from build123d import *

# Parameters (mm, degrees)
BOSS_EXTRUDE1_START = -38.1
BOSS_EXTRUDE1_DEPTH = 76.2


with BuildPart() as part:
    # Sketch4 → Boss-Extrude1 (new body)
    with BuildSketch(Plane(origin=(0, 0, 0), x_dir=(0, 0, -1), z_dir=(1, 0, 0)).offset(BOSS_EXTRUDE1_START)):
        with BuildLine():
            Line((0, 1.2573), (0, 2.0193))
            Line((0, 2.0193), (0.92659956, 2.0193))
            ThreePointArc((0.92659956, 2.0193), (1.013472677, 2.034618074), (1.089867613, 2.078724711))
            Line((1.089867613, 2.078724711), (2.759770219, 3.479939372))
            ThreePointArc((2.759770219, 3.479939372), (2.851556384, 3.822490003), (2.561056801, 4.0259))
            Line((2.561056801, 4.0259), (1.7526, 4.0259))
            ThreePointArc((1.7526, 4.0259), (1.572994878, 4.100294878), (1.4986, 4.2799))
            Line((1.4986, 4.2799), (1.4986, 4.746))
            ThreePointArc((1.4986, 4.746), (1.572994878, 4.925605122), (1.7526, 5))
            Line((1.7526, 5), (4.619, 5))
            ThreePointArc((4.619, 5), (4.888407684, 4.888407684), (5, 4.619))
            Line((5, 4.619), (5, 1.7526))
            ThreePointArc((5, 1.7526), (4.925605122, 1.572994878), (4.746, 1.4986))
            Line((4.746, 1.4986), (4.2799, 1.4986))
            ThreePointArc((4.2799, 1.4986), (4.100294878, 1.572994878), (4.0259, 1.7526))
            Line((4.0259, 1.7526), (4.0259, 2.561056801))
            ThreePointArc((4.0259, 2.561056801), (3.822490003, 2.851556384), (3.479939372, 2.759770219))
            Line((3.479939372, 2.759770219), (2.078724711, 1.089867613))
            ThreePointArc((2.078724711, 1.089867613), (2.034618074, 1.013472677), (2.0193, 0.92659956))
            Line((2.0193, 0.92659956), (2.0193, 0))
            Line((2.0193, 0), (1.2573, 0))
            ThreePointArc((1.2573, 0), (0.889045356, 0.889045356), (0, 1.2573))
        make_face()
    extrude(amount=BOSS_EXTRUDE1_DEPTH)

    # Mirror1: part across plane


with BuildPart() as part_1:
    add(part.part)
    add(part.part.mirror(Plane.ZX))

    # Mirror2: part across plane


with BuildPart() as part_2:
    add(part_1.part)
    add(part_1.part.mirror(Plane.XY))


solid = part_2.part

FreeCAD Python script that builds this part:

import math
import FreeCAD as App
import Part
import Sketcher
Q = App.Units.Quantity

doc = App.newDocument("Part")
params = doc.addObject("Spreadsheet::Sheet", "Params")
for row, (alias, value) in enumerate([
    ("sketch1_radius", "0.01 in"),
    ("sketch1_radius2", "0.015 in"),
    ("sketch1_width", "0.03 in"),
    ("pad1_length", "3 in"),
], start=1):
    params.set(f"A{row}", alias)
    params.set(f"B{row}", "=" + value)
    params.setAlias(f"B{row}", alias)

body = doc.addObject("PartDesign::Body", "Body")

# Sketch on YZ plane
sketch1 = body.newObject("Sketcher::SketchObject", "Sketch")
sketch1.AttachmentSupport = (doc.getObject("YZ_Plane"), [""])
sketch1.MapMode = "FlatFace"
sketch1.AttachmentOffset = App.Placement(App.Vector(0, 0, -1.5 * 25.4), App.Rotation())
sketch1.addGeometry(Part.LineSegment(App.Vector(2.02, 0, 0), App.Vector(1.26, 0, 0)), False)
sketch1.addGeometry(Part.ArcOfCircle(Part.Circle(App.Vector(0, 0, 0), App.Vector(0, 0, 1), 1.26), math.radians(-90), math.radians(0)), False)
sketch1.addGeometry(Part.LineSegment(App.Vector(0, -1.26, 0), App.Vector(0, -2.02, 0)), False)
sketch1.addGeometry(Part.LineSegment(App.Vector(0, -2.02, 0), App.Vector(0.93, -2.02, 0)), False)
sketch1.addGeometry(Part.ArcOfCircle(Part.Circle(App.Vector(0.93, -2.27, 0), App.Vector(0, 0, 1), 0.25), math.radians(50), math.radians(90)), False)
sketch1.addGeometry(Part.LineSegment(App.Vector(1.09, -2.08, 0), App.Vector(2.76, -3.48, 0)), False)
sketch1.addGeometry(Part.ArcOfCircle(Part.Circle(App.Vector(2.56, -3.72, 0), App.Vector(0, 0, 1), 0.31), math.radians(-90), math.radians(50)), False)
sketch1.addGeometry(Part.LineSegment(App.Vector(2.56, -4.03, 0), App.Vector(1.75, -4.03, 0)), False)
sketch1.addGeometry(Part.ArcOfCircle(Part.Circle(App.Vector(1.75, -4.28, 0), App.Vector(0, 0, 1), 0.25), math.radians(90), math.radians(180)), False)
sketch1.addGeometry(Part.LineSegment(App.Vector(1.5, -4.28, 0), App.Vector(1.5, -4.75, 0)), False)
sketch1.addGeometry(Part.ArcOfCircle(Part.Circle(App.Vector(1.75, -4.75, 0), App.Vector(0, 0, 1), 0.25), math.radians(-180), math.radians(-90)), False)
sketch1.addGeometry(Part.LineSegment(App.Vector(1.75, -5, 0), App.Vector(4.62, -5, 0)), False)
sketch1.addGeometry(Part.ArcOfCircle(Part.Circle(App.Vector(4.62, -4.62, 0), App.Vector(0, 0, 1), 0.38), math.radians(-90), math.radians(0)), False)
sketch1.addGeometry(Part.LineSegment(App.Vector(5, -4.62, 0), App.Vector(5, -1.75, 0)), False)
sketch1.addGeometry(Part.ArcOfCircle(Part.Circle(App.Vector(4.75, -1.75, 0), App.Vector(0, 0, 1), 0.25), math.radians(0), math.radians(90)), False)
sketch1.addGeometry(Part.LineSegment(App.Vector(4.75, -1.5, 0), App.Vector(4.28, -1.5, 0)), False)
sketch1.addGeometry(Part.ArcOfCircle(Part.Circle(App.Vector(4.28, -1.75, 0), App.Vector(0, 0, 1), 0.25), math.radians(90), math.radians(180)), False)
sketch1.addGeometry(Part.LineSegment(App.Vector(4.03, -1.75, 0), App.Vector(4.03, -2.56, 0)), False)
sketch1.addGeometry(Part.ArcOfCircle(Part.Circle(App.Vector(3.72, -2.56, 0), App.Vector(0, 0, 1), 0.31), math.radians(-140), math.radians(0)), False)
sketch1.addGeometry(Part.LineSegment(App.Vector(3.48, -2.76, 0), App.Vector(2.08, -1.09, 0)), False)
sketch1.addGeometry(Part.ArcOfCircle(Part.Circle(App.Vector(2.27, -0.93, 0), App.Vector(0, 0, 1), 0.25), math.radians(180), math.radians(220)), False)
sketch1.addGeometry(Part.LineSegment(App.Vector(2.02, -0.93, 0), App.Vector(2.02, 0, 0)), False)
sketch1.addConstraint(Sketcher.Constraint("Coincident", 0, 2, 1, 2))
sketch1.addConstraint(Sketcher.Constraint("Coincident", 1, 1, 2, 1))
sketch1.addConstraint(Sketcher.Constraint("Coincident", 2, 2, 3, 1))
sketch1.addConstraint(Sketcher.Constraint("Tangent", 3, 2, 4, 2))
sketch1.addConstraint(Sketcher.Constraint("Tangent", 4, 1, 5, 1))
sketch1.addConstraint(Sketcher.Constraint("Tangent", 5, 2, 6, 2))
sketch1.addConstraint(Sketcher.Constraint("Tangent", 6, 1, 7, 1))
sketch1.addConstraint(Sketcher.Constraint("Tangent", 7, 2, 8, 1))
sketch1.addConstraint(Sketcher.Constraint("Tangent", 8, 2, 9, 1))
sketch1.addConstraint(Sketcher.Constraint("Tangent", 9, 2, 10, 1))
sketch1.addConstraint(Sketcher.Constraint("Tangent", 10, 2, 11, 1))
sketch1.addConstraint(Sketcher.Constraint("Tangent", 11, 2, 12, 1))
sketch1.addConstraint(Sketcher.Constraint("Tangent", 12, 2, 13, 1))
sketch1.addConstraint(Sketcher.Constraint("Tangent", 13, 2, 14, 1))
sketch1.addConstraint(Sketcher.Constraint("Tangent", 14, 2, 15, 1))
sketch1.addConstraint(Sketcher.Constraint("Tangent", 15, 2, 16, 1))
sketch1.addConstraint(Sketcher.Constraint("Tangent", 16, 2, 17, 1))
sketch1.addConstraint(Sketcher.Constraint("Tangent", 17, 2, 18, 2))
sketch1.addConstraint(Sketcher.Constraint("Tangent", 18, 1, 19, 1))
sketch1.addConstraint(Sketcher.Constraint("Tangent", 19, 2, 20, 2))
sketch1.addConstraint(Sketcher.Constraint("Tangent", 20, 1, 21, 1))
sketch1.addConstraint(Sketcher.Constraint("Coincident", 21, 2, 0, 1))
sketch1.addConstraint(Sketcher.Constraint("Horizontal", 0))
sketch1.addConstraint(Sketcher.Constraint("Vertical", 2))
sketch1.addConstraint(Sketcher.Constraint("Horizontal", 3))
sketch1.addConstraint(Sketcher.Constraint("Horizontal", 7))
sketch1.addConstraint(Sketcher.Constraint("Vertical", 9))
sketch1.addConstraint(Sketcher.Constraint("Horizontal", 11))
sketch1.addConstraint(Sketcher.Constraint("Vertical", 13))
sketch1.addConstraint(Sketcher.Constraint("Horizontal", 15))
sketch1.addConstraint(Sketcher.Constraint("Vertical", 17))
sketch1.addConstraint(Sketcher.Constraint("Vertical", 21))
sketch1.addConstraint(Sketcher.Constraint("Coincident", 1, 3, -1, 1))
sketch1.addConstraint(Sketcher.Constraint("Equal", 4, 8))
sketch1.addConstraint(Sketcher.Constraint("Equal", 8, 10))
sketch1.addConstraint(Sketcher.Constraint("Equal", 10, 14))
sketch1.addConstraint(Sketcher.Constraint("Equal", 14, 16))
sketch1.addConstraint(Sketcher.Constraint("Equal", 6, 18))
sketch1.addConstraint(Sketcher.Constraint("Equal", 16, 20))
sketch1.addConstraint(Sketcher.Constraint("PointOnObject", 0, 2, -1))
sketch1.addConstraint(Sketcher.Constraint("PointOnObject", 1, 1, -2))
sketch1.addConstraint(Sketcher.Constraint("Equal", 0, 2))
sketch1.addConstraint(Sketcher.Constraint("Equal", 15, 9))
sketch1.addConstraint(Sketcher.Constraint("Equal", 11, 13))
sketch1.addConstraint(Sketcher.Constraint("Equal", 7, 17))
sketch1.addConstraint(Sketcher.Constraint("Equal", 3, 21))
sketch1.addConstraint(Sketcher.Constraint("Equal", 5, 19))
sketch1.addConstraint(Sketcher.Constraint("Radius", 4, Q("0.01 in")))
sketch1.addConstraint(Sketcher.Constraint("Angle", 5, Q("-40 deg")))
sketch1.addConstraint(Sketcher.Constraint("Radius", 12, Q("0.015 in")))
sketch1.addConstraint(Sketcher.Constraint("DistanceX", 0, 2, 0, 1, Q("0.03 in")))
sketch1.addConstraint(Sketcher.Constraint("Radius", 1, Q("0.0495 in")))
sketch1.addConstraint(Sketcher.Constraint("DistanceX", -1, 1, 8, 3, Q("0.069 in")))
sketch1.addConstraint(Sketcher.Constraint("DistanceY", 8, 3, 4, 3, Q("0.079 in")))
sketch1.addConstraint(Sketcher.Constraint("DistanceX", 3, 1, 3, 2, Q("0.9266 mm")))
sketch1.addConstraint(Sketcher.Constraint("DistanceX", 11, 1, 11, 2, Q("2.8664 mm")))
sketch1.addConstraint(Sketcher.Constraint("Radius", 6, Q("0.309143 mm")))
sketch1.setExpression("Constraints[47]", "Params.sketch1_radius")
sketch1.setExpression("Constraints[49]", "Params.sketch1_radius2")
sketch1.setExpression("Constraints[50]", "Params.sketch1_width")
pad1 = body.newObject("PartDesign::Pad", "Pad")
pad1.Profile = sketch1
pad1.setExpression("Length", "Params.pad1_length")
body2 = doc.addObject("PartDesign::Body", "Body001")
doc.recompute()

body2.BaseFeature = body
doc.recompute()

mirroring = doc.addObject("Part::Mirroring", "Mirroring")
mirroring.Source = body
mirroring.Base = App.Vector(0, 0, 0)
mirroring.Normal = App.Vector(0, 1, 0)
body3 = doc.addObject("PartDesign::Body", "Body002")
body3.BaseFeature = mirroring
boolean = body2.newObject("PartDesign::Boolean", "Boolean")
boolean.Type = "Fuse"
boolean.addObjects([body3])
doc.recompute()
body4 = doc.addObject("PartDesign::Body", "Body003")
doc.recompute()

body4.BaseFeature = body2
doc.recompute()

mirroring2 = doc.addObject("Part::Mirroring", "Mirroring001")
mirroring2.Source = body2
mirroring2.Base = App.Vector(0, 0, 0)
mirroring2.Normal = App.Vector(0, 0, 1)
body5 = doc.addObject("PartDesign::Body", "Body004")
body5.BaseFeature = mirroring2
boolean2 = body4.newObject("PartDesign::Boolean", "Boolean001")
boolean2.Type = "Fuse"
boolean2.addObjects([body5])
doc.recompute()
mirroring.Visibility = False
mirroring2.Visibility = False

doc.recompute()
